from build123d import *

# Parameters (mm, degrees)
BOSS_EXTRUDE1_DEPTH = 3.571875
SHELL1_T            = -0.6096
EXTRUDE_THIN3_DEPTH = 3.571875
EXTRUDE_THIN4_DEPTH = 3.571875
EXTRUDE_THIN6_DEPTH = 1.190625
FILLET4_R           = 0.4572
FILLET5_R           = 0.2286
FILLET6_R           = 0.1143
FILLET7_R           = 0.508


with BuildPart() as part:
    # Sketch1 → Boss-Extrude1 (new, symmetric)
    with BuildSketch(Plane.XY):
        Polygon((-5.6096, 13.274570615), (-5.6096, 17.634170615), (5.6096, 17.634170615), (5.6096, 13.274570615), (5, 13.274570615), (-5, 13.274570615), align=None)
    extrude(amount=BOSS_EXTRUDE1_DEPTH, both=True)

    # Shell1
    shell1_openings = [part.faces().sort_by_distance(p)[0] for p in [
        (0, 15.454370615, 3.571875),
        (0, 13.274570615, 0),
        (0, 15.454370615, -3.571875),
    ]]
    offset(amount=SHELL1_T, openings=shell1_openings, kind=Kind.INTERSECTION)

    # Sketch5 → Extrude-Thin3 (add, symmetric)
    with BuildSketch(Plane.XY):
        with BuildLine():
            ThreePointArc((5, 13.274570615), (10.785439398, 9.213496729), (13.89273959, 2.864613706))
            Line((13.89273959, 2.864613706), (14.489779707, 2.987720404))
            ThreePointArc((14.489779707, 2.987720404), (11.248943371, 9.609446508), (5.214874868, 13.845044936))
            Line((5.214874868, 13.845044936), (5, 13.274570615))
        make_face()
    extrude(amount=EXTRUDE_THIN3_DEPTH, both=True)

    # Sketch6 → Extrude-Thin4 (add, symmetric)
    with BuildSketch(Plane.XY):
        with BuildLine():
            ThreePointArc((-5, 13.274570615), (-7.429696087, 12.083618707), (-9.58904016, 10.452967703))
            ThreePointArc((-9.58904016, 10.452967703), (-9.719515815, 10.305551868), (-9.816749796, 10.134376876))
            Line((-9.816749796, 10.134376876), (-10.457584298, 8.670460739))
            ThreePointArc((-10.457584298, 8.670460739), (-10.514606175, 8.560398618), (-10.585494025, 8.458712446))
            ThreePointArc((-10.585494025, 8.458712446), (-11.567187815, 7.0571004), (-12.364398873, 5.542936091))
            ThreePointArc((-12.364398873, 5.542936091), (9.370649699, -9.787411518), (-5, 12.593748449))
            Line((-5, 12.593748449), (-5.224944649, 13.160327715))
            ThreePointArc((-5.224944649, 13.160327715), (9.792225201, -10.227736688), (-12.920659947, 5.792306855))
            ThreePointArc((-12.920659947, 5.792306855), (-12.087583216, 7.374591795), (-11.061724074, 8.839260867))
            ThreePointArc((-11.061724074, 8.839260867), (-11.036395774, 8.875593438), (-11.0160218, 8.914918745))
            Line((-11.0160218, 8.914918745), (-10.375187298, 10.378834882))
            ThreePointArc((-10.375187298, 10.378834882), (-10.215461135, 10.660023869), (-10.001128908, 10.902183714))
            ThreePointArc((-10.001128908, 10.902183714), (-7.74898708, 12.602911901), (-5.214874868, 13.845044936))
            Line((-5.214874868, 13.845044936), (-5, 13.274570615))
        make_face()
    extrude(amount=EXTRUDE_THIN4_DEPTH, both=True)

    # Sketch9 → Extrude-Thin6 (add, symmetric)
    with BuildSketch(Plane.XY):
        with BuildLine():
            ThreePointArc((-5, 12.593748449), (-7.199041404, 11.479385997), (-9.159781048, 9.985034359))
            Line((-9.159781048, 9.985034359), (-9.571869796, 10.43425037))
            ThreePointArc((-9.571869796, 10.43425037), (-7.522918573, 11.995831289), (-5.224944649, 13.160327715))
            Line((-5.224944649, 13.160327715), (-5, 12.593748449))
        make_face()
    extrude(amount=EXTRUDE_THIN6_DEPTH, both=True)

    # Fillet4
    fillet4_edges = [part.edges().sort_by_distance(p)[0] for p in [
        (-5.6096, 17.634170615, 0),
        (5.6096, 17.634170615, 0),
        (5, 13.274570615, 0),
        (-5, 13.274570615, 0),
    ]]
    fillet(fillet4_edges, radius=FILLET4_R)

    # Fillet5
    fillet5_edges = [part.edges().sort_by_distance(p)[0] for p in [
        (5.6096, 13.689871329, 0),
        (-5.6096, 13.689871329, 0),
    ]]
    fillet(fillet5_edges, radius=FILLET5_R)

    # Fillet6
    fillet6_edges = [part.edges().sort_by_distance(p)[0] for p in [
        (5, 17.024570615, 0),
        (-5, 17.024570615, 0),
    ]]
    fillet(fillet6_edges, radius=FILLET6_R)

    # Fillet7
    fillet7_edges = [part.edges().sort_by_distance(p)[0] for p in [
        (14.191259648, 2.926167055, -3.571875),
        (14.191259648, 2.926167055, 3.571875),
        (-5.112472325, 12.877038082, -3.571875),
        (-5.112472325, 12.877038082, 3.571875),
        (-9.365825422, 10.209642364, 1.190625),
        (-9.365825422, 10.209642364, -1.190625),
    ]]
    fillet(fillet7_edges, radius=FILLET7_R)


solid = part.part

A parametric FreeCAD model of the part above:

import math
import FreeCAD as App
import Part
import Sketcher
Q = App.Units.Quantity


def edges_at(feature, points):
    """Names of the edges that pass closest to the given points."""
    edges = feature.Shape.Edges
    near = lambda p: min(range(len(edges)), key=lambda i: edges[i].distToShape(Part.Vertex(*p))[0])
    return sorted({f"Edge{near(p) + 1}" for p in points})


def faces_at(feature, points):
    """Names of the faces that lie closest to the given points."""
    faces = feature.Shape.Faces
    near = lambda p: min(range(len(faces)), key=lambda i: faces[i].distToShape(Part.Vertex(*p))[0])
    return sorted({f"Face{near(p) + 1}" for p in points})

doc = App.newDocument("Part")
body = doc.addObject("PartDesign::Body", "Body")

# Sketch on XY plane
sketch1 = body.newObject("Sketcher::SketchObject", "Sketch")
sketch1.AttachmentSupport = (doc.getObject("XY_Plane"), [""])
sketch1.MapMode = "FlatFace"
sketch1.addGeometry(Part.LineSegment(App.Vector(-5.6, 17.6, 0), App.Vector(-5.6, 13.3, 0)), False)
sketch1.addGeometry(Part.LineSegment(App.Vector(-5.6, 13.3, 0), App.Vector(5.6, 13.3, 0)), False)
sketch1.addGeometry(Part.LineSegment(App.Vector(5.6, 13.3, 0), App.Vector(5.6, 17.6, 0)), False)
sketch1.addGeometry(Part.LineSegment(App.Vector(5.6, 17.6, 0), App.Vector(-5.6, 17.6, 0)), False)
sketch1.addConstraint(Sketcher.Constraint("Coincident", 0, 2, 1, 1))
sketch1.addConstraint(Sketcher.Constraint("Coincident", 1, 2, 2, 1))
sketch1.addConstraint(Sketcher.Constraint("Coincident", 2, 2, 3, 1))
sketch1.addConstraint(Sketcher.Constraint("Coincident", 3, 2, 0, 1))
sketch1.addConstraint(Sketcher.Constraint("Vertical", 0))
sketch1.addConstraint(Sketcher.Constraint("Horizontal", 1))
sketch1.addConstraint(Sketcher.Constraint("Vertical", 2))
sketch1.addConstraint(Sketcher.Constraint("Horizontal", 3))
sketch1.addConstraint(Sketcher.Constraint("DistanceX", 1, 1, 1, 2, 11.2192))
sketch1.addConstraint(Sketcher.Constraint("DistanceY", 0, 2, 0, 1, 4.3596))
sketch1.addConstraint(Sketcher.Constraint("DistanceX", 0, 2, -1, 1, 5.6096))
sketch1.addConstraint(Sketcher.Constraint("DistanceY", -1, 1, 0, 2, 13.274571))
pad1 = body.newObject("PartDesign::Pad", "Pad")
pad1.Profile = sketch1
pad1.Length = Q("0.28125 in")
pad1.Midplane = True
doc.recompute()

thickness = body.newObject("PartDesign::Thickness", "Thickness")
thickness.Base = (pad1, faces_at(pad1, [(0, 15.454, 3.572), (0, 13.275, 0), (0, 15.454, -3.572)]))
thickness.Value = Q("0.024 in")
thickness.Reversed = True
thickness.Join = "Intersection"

# Sketch on XY plane
sketch2 = body.newObject("Sketcher::SketchObject", "Sketch001")
sketch2.AttachmentSupport = (doc.getObject("XY_Plane"), [""])
sketch2.MapMode = "FlatFace"
sketch2.addGeometry(Part.ArcOfCircle(Part.Circle(App.Vector(0, 0, 0), App.Vector(0, 0, 1), 14.2), math.radians(12), math.radians(69)), False)
sketch2.addGeometry(Part.LineSegment(App.Vector(13.9, 2.9, 0), App.Vector(14.5, 3, 0)), False)
sketch2.addGeometry(Part.ArcOfCircle(Part.Circle(App.Vector(0, 0, 0), App.Vector(0, 0, 1), 14.8), math.radians(12), math.radians(69)), False)
sketch2.addGeometry(Part.LineSegment(App.Vector(5.2, 13.8, 0), App.Vector(5, 13.3, 0)), False)
sketch2.addConstraint(Sketcher.Constraint("Coincident", 0, 1, 1, 1))
sketch2.addConstraint(Sketcher.Constraint("Coincident", 1, 2, 2, 1))
sketch2.addConstraint(Sketcher.Constraint("Coincident", 2, 2, 3, 1))
sketch2.addConstraint(Sketcher.Constraint("Coincident", 3, 2, 0, 2))
sketch2.addConstraint(Sketcher.Constraint("Coincident", 0, 3, -1, 1))
sketch2.addConstraint(Sketcher.Constraint("Coincident", 2, 3, -1, 1))
sketch2.addConstraint(Sketcher.Constraint("Radius", 0, 14.185))
sketch2.addConstraint(Sketcher.Constraint("Radius", 2, 14.7946))
sketch2.addConstraint(Sketcher.Constraint("DistanceX", -1, 1, 3, 2, 5.0))
sketch2.addConstraint(Sketcher.Constraint("DistanceX", -1, 1, 0, 1, 13.89274))
sketch2.addConstraint(Sketcher.Constraint("DistanceX", -1, 1, 1, 2, 14.48978))
sketch2.addConstraint(Sketcher.Constraint("DistanceY", 0, 1, 2, 2, 10.980431))
pad2 = body.newObject("PartDesign::Pad", "Pad001")
pad2.Profile = sketch2
pad2.Length = Q("0.28125 in")
pad2.Midplane = True

# Sketch on XY plane
sketch3 = body.newObject("Sketcher::SketchObject", "Sketch002")
sketch3.AttachmentSupport = (doc.getObject("XY_Plane"), [""])
sketch3.MapMode = "FlatFace"
sketch3.addGeometry(Part.ArcOfCircle(Part.Circle(App.Vector(0, 0, 0), App.Vector(0, 0, 1), 14.19), math.radians(111), math.radians(133)), False)
sketch3.addGeometry(Part.LineSegment(App.Vector(-5, 13.27, 0), App.Vector(-5.21, 13.85, 0)), False)
sketch3.addGeometry(Part.ArcOfCircle(Part.Circle(App.Vector(0, 0, 0), App.Vector(0, 0, 1), 14.79), math.radians(111), math.radians(133)), False)
sketch3.addGeometry(Part.ArcOfCircle(Part.Circle(App.Vector(-8.95, 9.75, 0), App.Vector(0, 0, 1), 1.56), math.radians(133), math.radians(156)), False)
sketch3.addGeometry(Part.LineSegment(App.Vector(-10.38, 10.38, 0), App.Vector(-11.02, 8.91, 0)), False)
sketch3.addGeometry(Part.ArcOfCircle(Part.Circle(App.Vector(-11.33, 9.05, 0), App.Vector(0, 0, 1), 0.34), math.radians(-38.63), math.radians(-23.64)), False)
sketch3.addGeometry(Part.ArcOfCircle(Part.Circle(App.Vector(0, 0, 0), App.Vector(0, 0, 1), 14.16), math.radians(141.37), math.radians(155.85)), False)
sketch3.addGeometry(Part.ArcOfCircle(Part.Circle(App.Vector(0, 0, 0), App.Vector(0, 0, 1), 14.16), math.radians(156), math.radians(472)), False)
sketch3.addGeometry(Part.LineSegment(App.Vector(-5.22, 13.16, 0), App.Vector(-5, 12.59, 0)), False)
sketch3.addGeometry(Part.ArcOfCircle(Part.Circle(App.Vector(0, 0, 0), App.Vector(0, 0, 1), 13.55), math.radians(156), math.radians(472)), False)
sketch3.addGeometry(Part.ArcOfCircle(Part.Circle(App.Vector(0, 0, 0), App.Vector(0, 0, 1), 13.55), math.radians(141.37), math.radians(155.85)), False)
sketch3.addGeometry(Part.ArcOfCircle(Part.Circle(App.Vector(-11.33, 9.05, 0), App.Vector(0, 0, 1), 0.95), math.radians(-38.63), math.radians(-23.64)), False)
sketch3.addGeometry(Part.LineSegment(App.Vector(-10.46, 8.67, 0), App.Vector(-9.82, 10.13, 0)), False)
sketch3.addGeometry(Part.ArcOfCircle(Part.Circle(App.Vector(-8.95, 9.75, 0), App.Vector(0, 0, 1), 0.95), math.radians(133), math.radians(156)), False)
sketch3.addConstraint(Sketcher.Constraint("Coincident", 0, 1, 1, 1))
sketch3.addConstraint(Sketcher.Constraint("Coincident", 1, 2, 2, 1))
sketch3.addConstraint(Sketcher.Constraint("Tangent", 2, 2, 3, 1))
sketch3.addConstraint(Sketcher.Constraint("Tangent", 3, 2, 4, 1))
sketch3.addConstraint(Sketcher.Constraint("Tangent", 4, 2, 5, 2))
sketch3.addConstraint(Sketcher.Constraint("Tangent", 5, 1, 6, 1))
sketch3.addConstraint(Sketcher.Constraint("Tangent", 6, 2, 7, 1))
sketch3.addConstraint(Sketcher.Constraint("Coincident", 7, 2, 8, 1))
sketch3.addConstraint(Sketcher.Constraint("Coincident", 8, 2, 9, 2))
sketch3.addConstraint(Sketcher.Constraint("Tangent", 9, 1, 10, 2))
sketch3.addConstraint(Sketcher.Constraint("Tangent", 10, 1, 11, 1))
sketch3.addConstraint(Sketcher.Constraint("Tangent", 11, 2, 12, 1))
sketch3.addConstraint(Sketcher.Constraint("Tangent", 12, 2, 13, 2))
sketch3.addConstraint(Sketcher.Constraint("Tangent", 13, 1, 0, 2))
sketch3.addConstraint(Sketcher.Constraint("Coincident", 0, 3, -1, 1))
sketch3.addConstraint(Sketcher.Constraint("Coincident", 2, 3, -1, 1))
sketch3.addConstraint(Sketcher.Constraint("Coincident", 6, 3, -1, 1))
sketch3.addConstraint(Sketcher.Constraint("Coincident", 9, 3, -1, 1))
sketch3.addConstraint(Sketcher.Constraint("Coincident", 11, 3, 5, 3))
sketch3.addConstraint(Sketcher.Constraint("Coincident", 13, 3, 3, 3))
sketch3.addConstraint(Sketcher.Constraint("Equal", 6, 7))
sketch3.addConstraint(Sketcher.Constraint("Equal", 9, 10))
sketch3.addConstraint(Sketcher.Constraint("Equal", 11, 13))
sketch3.addConstraint(Sketcher.Constraint("Parallel", 4, 12))
sketch3.addConstraint(Sketcher.Constraint("Vertical", 0, 1, 8, 2))
sketch3.addConstraint(Sketcher.Constraint("Radius", 0, 14.185))
sketch3.addConstraint(Sketcher.Constraint("Radius", 2, 14.7946))
sketch3.addConstraint(Sketcher.Constraint("Radius", 3, 1.5581))
sketch3.addConstraint(Sketcher.Constraint("Radius", 6, 14.1596))
sketch3.addConstraint(Sketcher.Constraint("DistanceX", 6, 2, 9, 1, Q("0.0219 in")))
sketch3.addConstraint(Sketcher.Constraint("DistanceX", 0, 1, -1, 1, 5.0))
sketch3.addConstraint(Sketcher.Constraint("DistanceX", 9, 1, -1, 1, 12.364399))
sketch3.addConstraint(Sketcher.Constraint("DistanceY", 11, 2, 5, 1, 0.1688))
sketch3.addConstraint(Sketcher.Constraint("DistanceX", 5, 3, -1, 1, 11.326479))
sketch3.addConstraint(Sketcher.Constraint("DistanceX", 3, 3, 1, 2, 3.732981))
sketch3.addConstraint(Sketcher.Constraint("DistanceX", 7, 2, 1, 2, 0.01007))
pad3 = body.newObject("PartDesign::Pad", "Pad002")
pad3.Profile = sketch3
pad3.Length = Q("0.28125 in")
pad3.Midplane = True

# Sketch on XY plane
sketch4 = body.newObject("Sketcher::SketchObject", "Sketch003")
sketch4.AttachmentSupport = (doc.getObject("XY_Plane"), [""])
sketch4.MapMode = "FlatFace"
sketch4.addGeometry(Part.ArcOfCircle(Part.Circle(App.Vector(0, 0, 0), App.Vector(0, 0, 1), 13.5), math.radians(112), math.radians(133)), False)
sketch4.addGeometry(Part.LineSegment(App.Vector(-5, 12.6, 0), App.Vector(-5.2, 13.2, 0)), False)
sketch4.addGeometry(Part.ArcOfCircle(Part.Circle(App.Vector(0, 0, 0), App.Vector(0, 0, 1), 14.2), math.radians(112), math.radians(133)), False)
sketch4.addGeometry(Part.LineSegment(App.Vector(-9.6, 10.4, 0), App.Vector(-9.2, 10, 0)), False)
sketch4.addConstraint(Sketcher.Constraint("Coincident", 0, 1, 1, 1))
sketch4.addConstraint(Sketcher.Constraint("Coincident", 1, 2, 2, 1))
sketch4.addConstraint(Sketcher.Constraint("Coincident", 2, 2, 3, 1))
sketch4.addConstraint(Sketcher.Constraint("Coincident", 3, 2, 0, 2))
sketch4.addConstraint(Sketcher.Constraint("Coincident", 0, 3, -1, 1))
sketch4.addConstraint(Sketcher.Constraint("Coincident", 2, 3, -1, 1))
sketch4.addConstraint(Sketcher.Constraint("Radius", 0, 13.55))
sketch4.addConstraint(Sketcher.Constraint("Radius", 2, 14.1596))
sketch4.addConstraint(Sketcher.Constraint("DistanceX", 0, 1, -1, 1, 5.0))
sketch4.addConstraint(Sketcher.Constraint("DistanceY", 2, 2, 0, 1, 2.159498))
sketch4.addConstraint(Sketcher.Constraint("DistanceX", 3, 2, -1, 1, 9.159781))
sketch4.addConstraint(Sketcher.Constraint("DistanceY", 0, 1, 1, 2, 0.566579))
pad4 = body.newObject("PartDesign::Pad", "Pad003")
pad4.Profile = sketch4
pad4.Length = Q("0.09375 in")
pad4.Midplane = True
doc.recompute()

fillet = body.newObject("PartDesign::Fillet", "Fillet")
fillet.Base = (pad4, edges_at(pad4, [
    (-5.61, 17.634, 0),
    (5.61, 17.634, 0),
    (5, 13.275, 0),
    (-5, 13.275, 0),
]))
fillet.Radius = Q("0.018 in")
doc.recompute()

fillet2 = body.newObject("PartDesign::Fillet", "Fillet001")
fillet2.Base = (fillet, edges_at(fillet, [(5.61, 13.69, 0), (-5.61, 13.69, 0)]))
fillet2.Radius = Q("0.009 in")
doc.recompute()

fillet3 = body.newObject("PartDesign::Fillet", "Fillet002")
fillet3.Base = (fillet2, edges_at(fillet2, [(5, 17.025, 0), (-5, 17.025, 0)]))
fillet3.Radius = Q("0.0045 in")
doc.recompute()

fillet4 = body.newObject("PartDesign::Fillet", "Fillet003")
fillet4.Base = (fillet3, edges_at(fillet3, [
    (14.191, 2.926, -3.572),
    (14.191, 2.926, 3.572),
    (-5.112, 12.877, -3.572),
    (-5.112, 12.877, 3.572),
    (-9.366, 10.21, 1.191),
    (-9.366, 10.21, -1.191),
]))
fillet4.Radius = Q("0.02 in")

doc.recompute()
